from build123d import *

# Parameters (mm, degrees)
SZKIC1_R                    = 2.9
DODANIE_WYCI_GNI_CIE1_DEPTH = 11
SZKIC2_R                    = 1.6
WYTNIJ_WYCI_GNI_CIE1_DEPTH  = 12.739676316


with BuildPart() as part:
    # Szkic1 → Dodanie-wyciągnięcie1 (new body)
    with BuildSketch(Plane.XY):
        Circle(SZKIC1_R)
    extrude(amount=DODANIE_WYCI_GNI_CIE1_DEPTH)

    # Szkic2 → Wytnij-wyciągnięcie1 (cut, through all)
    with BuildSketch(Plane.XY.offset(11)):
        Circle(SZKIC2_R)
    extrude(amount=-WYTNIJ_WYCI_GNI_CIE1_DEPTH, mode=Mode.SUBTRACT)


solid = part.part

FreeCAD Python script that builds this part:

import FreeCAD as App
import Part
import Sketcher

V = App.Vector
Q = App.Units.Quantity

doc = App.newDocument("Part")
body = doc.addObject("PartDesign::Body", "Body")

# Sketch on XY plane
sketch1 = body.newObject("Sketcher::SketchObject", "Sketch")
sketch1.AttachmentSupport = (doc.getObject("XY_Plane"), [""])
sketch1.MapMode = "FlatFace"
sketch1.addGeometry(Part.Circle(V(0, 0, 0), V(0, 0, 1), 2.9), False)
sketch1.addConstraint([
    Sketcher.Constraint("Coincident", 0, 3, -1, 1),
    Sketcher.Constraint("Diameter", 0, Q("5.8 mm")),
])
pad1 = body.newObject("PartDesign::Pad", "Pad")
pad1.Profile = sketch1
pad1.Length = 11

# Sketch on XY plane
sketch2 = body.newObject("Sketcher::SketchObject", "Sketch001")
sketch2.AttachmentSupport = (doc.getObject("XY_Plane"), [""])
sketch2.MapMode = "FlatFace"
sketch2.AttachmentOffset = App.Placement(V(0, 0, 11), App.Rotation())
sketch2.addGeometry(Part.Circle(V(0, 0, 0), V(0, 0, 1), 1.6), False)
sketch2.addConstraint([
    Sketcher.Constraint("Coincident", 0, 3, -1, 1),
    Sketcher.Constraint("Diameter", 0, Q("3.2 mm")),
])
pocket1 = body.newObject("PartDesign::Pocket", "Pocket")
pocket1.Profile = sketch2
pocket1.Type = "ThroughAll"

doc.recompute()
